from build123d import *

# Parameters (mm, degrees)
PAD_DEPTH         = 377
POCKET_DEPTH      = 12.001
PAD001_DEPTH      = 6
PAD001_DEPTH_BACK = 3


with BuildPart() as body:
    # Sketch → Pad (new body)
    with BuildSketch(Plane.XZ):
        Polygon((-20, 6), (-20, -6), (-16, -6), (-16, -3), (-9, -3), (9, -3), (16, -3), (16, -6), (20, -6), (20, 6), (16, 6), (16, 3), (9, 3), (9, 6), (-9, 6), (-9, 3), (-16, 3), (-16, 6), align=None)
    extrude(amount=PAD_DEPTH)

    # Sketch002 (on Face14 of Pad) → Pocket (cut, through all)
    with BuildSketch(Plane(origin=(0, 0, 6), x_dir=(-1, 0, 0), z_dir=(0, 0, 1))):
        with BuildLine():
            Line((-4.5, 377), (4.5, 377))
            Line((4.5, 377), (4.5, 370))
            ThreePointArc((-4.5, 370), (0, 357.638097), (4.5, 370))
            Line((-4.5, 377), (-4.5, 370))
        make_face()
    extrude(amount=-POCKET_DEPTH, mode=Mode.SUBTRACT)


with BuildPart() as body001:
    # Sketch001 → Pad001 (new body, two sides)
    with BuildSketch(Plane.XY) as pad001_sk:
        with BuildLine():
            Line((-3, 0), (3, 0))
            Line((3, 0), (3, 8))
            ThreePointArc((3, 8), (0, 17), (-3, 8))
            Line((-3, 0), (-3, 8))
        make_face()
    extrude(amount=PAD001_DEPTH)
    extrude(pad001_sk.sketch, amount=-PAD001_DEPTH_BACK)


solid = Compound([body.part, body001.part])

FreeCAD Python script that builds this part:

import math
import FreeCAD as App
import Part
import Sketcher
Q = App.Units.Quantity


def add_polygon(sketch, points):
    """Adds a closed chain of lines whose ends are joined by coincident constraints."""
    first, n = sketch.GeometryCount, len(points)
    for a, b in zip(points, points[1:] + points[:1]):
        sketch.addGeometry(Part.LineSegment(App.Vector(*a, 0), App.Vector(*b, 0)), False)
    for i in range(n):
        sketch.addConstraint(Sketcher.Constraint("Coincident", first + i, 2, first + (i + 1) % n, 1))

doc = App.newDocument("Part")
body = doc.addObject("PartDesign::Body", "Body")

# Sketch on XZ plane
sketch1 = body.newObject("Sketcher::SketchObject", "Sketch")
sketch1.AttachmentSupport = (doc.getObject("XZ_Plane"), [""])
sketch1.MapMode = "FlatFace"
add_polygon(sketch1, [(-20, 6), (-20, -6), (-16, -6), (-16, -3), (16, -3), (16, -6), (20, -6), (20, 6), (16, 6), (16, 3), (9, 3), (9, 6), (-9, 6), (-9, 3), (-16, 3), (-16, 6)])  # lines 0-15
sketch1.addConstraint([
    Sketcher.Constraint("Vertical", 0),
    Sketcher.Constraint("Horizontal", 1),
    Sketcher.Constraint("Vertical", 2),
    Sketcher.Constraint("Horizontal", 3),
    Sketcher.Constraint("Vertical", 4),
    Sketcher.Constraint("Horizontal", 5),
    Sketcher.Constraint("Vertical", 6),
    Sketcher.Constraint("Horizontal", 7),
    Sketcher.Constraint("Vertical", 8),
    Sketcher.Constraint("Horizontal", 9),
    Sketcher.Constraint("Vertical", 10),
    Sketcher.Constraint("Horizontal", 11),
    Sketcher.Constraint("Vertical", 12),
    Sketcher.Constraint("Horizontal", 13),
    Sketcher.Constraint("Vertical", 14),
    Sketcher.Constraint("Horizontal", 15),
    Sketcher.Constraint("Symmetric", 0, 2, 6, 2, -1, 1),
    Sketcher.Constraint("Symmetric", 2, 2, 8, 2, -1, 1),
    Sketcher.Constraint("Symmetric", 3, 2, 13, 2, -1, 1),
    Sketcher.Constraint("Symmetric", 1, 2, 4, 2, -2),
    Sketcher.Constraint("Horizontal", 7, 2, 10, 2),
    Sketcher.Constraint("Horizontal", 11, 2, 14, 2),
    Sketcher.Constraint("Equal", 9, 13),
    Sketcher.Constraint("DistanceX", 1, 1, 1, 2, Q("4 mm")),
    Sketcher.Constraint("DistanceX", 3, 1, 3, 2, Q("32 mm")),
    Sketcher.Constraint("DistanceX", 9, 2, 9, 1, Q("7 mm")),
    Sketcher.Constraint("DistanceY", 0, 2, 0, 1, Q("12 mm")),
    Sketcher.Constraint("DistanceY", 2, 1, 2, 2, Q("3 mm")),
])
pad1 = body.newObject("PartDesign::Pad", "Pad")
pad1.Profile = sketch1
pad1.Length = 377

# Sketch on XY plane
sketch2 = body.newObject("Sketcher::SketchObject", "Sketch001")
sketch2.AttachmentSupport = (doc.getObject("XY_Plane"), [""])
sketch2.MapMode = "FlatFace"
sketch2.AttachmentOffset = App.Placement(App.Vector(0, 0, 6), App.Rotation())
sketch2.addGeometry([
    Part.LineSegment(App.Vector(-4, -377, 0), App.Vector(4, -377, 0)),
    Part.LineSegment(App.Vector(4, -377, 0), App.Vector(4, -370, 0)),
    Part.ArcOfCircle(Part.Circle(App.Vector(0, -365, 0), App.Vector(0, 0, 1), 7), math.radians(-50), math.radians(230)),
    Part.LineSegment(App.Vector(-4, -370, 0), App.Vector(-4, -377, 0)),
], False)
sketch2.addConstraint([
    Sketcher.Constraint("Coincident", 0, 2, 1, 1),
    Sketcher.Constraint("Coincident", 1, 2, 2, 1),
    Sketcher.Constraint("Coincident", 2, 2, 3, 1),
    Sketcher.Constraint("Coincident", 3, 2, 0, 1),
    Sketcher.Constraint("Horizontal", 0),
    Sketcher.Constraint("Vertical", 1),
    Sketcher.Constraint("Vertical", 3),
    Sketcher.Constraint("Symmetric", 1, 2, 2, 2, -2),
    Sketcher.Constraint("Radius", 2, Q("7 mm")),
    Sketcher.Constraint("DistanceX", 0, 1, 0, 2, Q("9 mm")),
    Sketcher.Constraint("DistanceY", 1, 1, 1, 2, Q("7 mm")),
    Sketcher.Constraint("DistanceY", 0, 2, -1, 1, Q("377 mm")),
])
pocket1 = body.newObject("PartDesign::Pocket", "Pocket")
pocket1.Profile = sketch2
pocket1.Type = "ThroughAll"
body2 = doc.addObject("PartDesign::Body", "Body001")

# Sketch on XY plane
sketch3 = body2.newObject("Sketcher::SketchObject", "Sketch002")
sketch3.AttachmentSupport = (doc.getObject("XY_Plane001"), [""])
sketch3.MapMode = "FlatFace"
sketch3.addGeometry([
    Part.LineSegment(App.Vector(-3, 0, 0), App.Vector(3, 0, 0)),
    Part.LineSegment(App.Vector(3, 0, 0), App.Vector(3, 8, 0)),
    Part.ArcOfCircle(Part.Circle(App.Vector(0, 12, 0), App.Vector(0, 0, 1), 5), math.radians(-53), math.radians(233)),
    Part.LineSegment(App.Vector(-3, 8, 0), App.Vector(-3, 0, 0)),
], False)
sketch3.addConstraint([
    Sketcher.Constraint("Coincident", 0, 2, 1, 1),
    Sketcher.Constraint("Coincident", 1, 2, 2, 1),
    Sketcher.Constraint("Coincident", 2, 2, 3, 1),
    Sketcher.Constraint("Coincident", 3, 2, 0, 1),
    Sketcher.Constraint("Horizontal", 0),
    Sketcher.Constraint("Vertical", 1),
    Sketcher.Constraint("Vertical", 3),
    Sketcher.Constraint("Symmetric", 0, 2, 3, 2, -1, 1),
    Sketcher.Constraint("PointOnObject", 2, 3, -2),
    Sketcher.Constraint("Radius", 2, Q("5 mm")),
    Sketcher.Constraint("DistanceX", 0, 1, 0, 2, Q("6 mm")),
    Sketcher.Constraint("DistanceY", 1, 1, 1, 2, Q("8 mm")),
])
pad2 = body2.newObject("PartDesign::Pad", "Pad001")
pad2.Profile = sketch3
pad2.Type = "TwoLengths"
pad2.Length = 6
pad2.Length2 = 3

doc.recompute()
